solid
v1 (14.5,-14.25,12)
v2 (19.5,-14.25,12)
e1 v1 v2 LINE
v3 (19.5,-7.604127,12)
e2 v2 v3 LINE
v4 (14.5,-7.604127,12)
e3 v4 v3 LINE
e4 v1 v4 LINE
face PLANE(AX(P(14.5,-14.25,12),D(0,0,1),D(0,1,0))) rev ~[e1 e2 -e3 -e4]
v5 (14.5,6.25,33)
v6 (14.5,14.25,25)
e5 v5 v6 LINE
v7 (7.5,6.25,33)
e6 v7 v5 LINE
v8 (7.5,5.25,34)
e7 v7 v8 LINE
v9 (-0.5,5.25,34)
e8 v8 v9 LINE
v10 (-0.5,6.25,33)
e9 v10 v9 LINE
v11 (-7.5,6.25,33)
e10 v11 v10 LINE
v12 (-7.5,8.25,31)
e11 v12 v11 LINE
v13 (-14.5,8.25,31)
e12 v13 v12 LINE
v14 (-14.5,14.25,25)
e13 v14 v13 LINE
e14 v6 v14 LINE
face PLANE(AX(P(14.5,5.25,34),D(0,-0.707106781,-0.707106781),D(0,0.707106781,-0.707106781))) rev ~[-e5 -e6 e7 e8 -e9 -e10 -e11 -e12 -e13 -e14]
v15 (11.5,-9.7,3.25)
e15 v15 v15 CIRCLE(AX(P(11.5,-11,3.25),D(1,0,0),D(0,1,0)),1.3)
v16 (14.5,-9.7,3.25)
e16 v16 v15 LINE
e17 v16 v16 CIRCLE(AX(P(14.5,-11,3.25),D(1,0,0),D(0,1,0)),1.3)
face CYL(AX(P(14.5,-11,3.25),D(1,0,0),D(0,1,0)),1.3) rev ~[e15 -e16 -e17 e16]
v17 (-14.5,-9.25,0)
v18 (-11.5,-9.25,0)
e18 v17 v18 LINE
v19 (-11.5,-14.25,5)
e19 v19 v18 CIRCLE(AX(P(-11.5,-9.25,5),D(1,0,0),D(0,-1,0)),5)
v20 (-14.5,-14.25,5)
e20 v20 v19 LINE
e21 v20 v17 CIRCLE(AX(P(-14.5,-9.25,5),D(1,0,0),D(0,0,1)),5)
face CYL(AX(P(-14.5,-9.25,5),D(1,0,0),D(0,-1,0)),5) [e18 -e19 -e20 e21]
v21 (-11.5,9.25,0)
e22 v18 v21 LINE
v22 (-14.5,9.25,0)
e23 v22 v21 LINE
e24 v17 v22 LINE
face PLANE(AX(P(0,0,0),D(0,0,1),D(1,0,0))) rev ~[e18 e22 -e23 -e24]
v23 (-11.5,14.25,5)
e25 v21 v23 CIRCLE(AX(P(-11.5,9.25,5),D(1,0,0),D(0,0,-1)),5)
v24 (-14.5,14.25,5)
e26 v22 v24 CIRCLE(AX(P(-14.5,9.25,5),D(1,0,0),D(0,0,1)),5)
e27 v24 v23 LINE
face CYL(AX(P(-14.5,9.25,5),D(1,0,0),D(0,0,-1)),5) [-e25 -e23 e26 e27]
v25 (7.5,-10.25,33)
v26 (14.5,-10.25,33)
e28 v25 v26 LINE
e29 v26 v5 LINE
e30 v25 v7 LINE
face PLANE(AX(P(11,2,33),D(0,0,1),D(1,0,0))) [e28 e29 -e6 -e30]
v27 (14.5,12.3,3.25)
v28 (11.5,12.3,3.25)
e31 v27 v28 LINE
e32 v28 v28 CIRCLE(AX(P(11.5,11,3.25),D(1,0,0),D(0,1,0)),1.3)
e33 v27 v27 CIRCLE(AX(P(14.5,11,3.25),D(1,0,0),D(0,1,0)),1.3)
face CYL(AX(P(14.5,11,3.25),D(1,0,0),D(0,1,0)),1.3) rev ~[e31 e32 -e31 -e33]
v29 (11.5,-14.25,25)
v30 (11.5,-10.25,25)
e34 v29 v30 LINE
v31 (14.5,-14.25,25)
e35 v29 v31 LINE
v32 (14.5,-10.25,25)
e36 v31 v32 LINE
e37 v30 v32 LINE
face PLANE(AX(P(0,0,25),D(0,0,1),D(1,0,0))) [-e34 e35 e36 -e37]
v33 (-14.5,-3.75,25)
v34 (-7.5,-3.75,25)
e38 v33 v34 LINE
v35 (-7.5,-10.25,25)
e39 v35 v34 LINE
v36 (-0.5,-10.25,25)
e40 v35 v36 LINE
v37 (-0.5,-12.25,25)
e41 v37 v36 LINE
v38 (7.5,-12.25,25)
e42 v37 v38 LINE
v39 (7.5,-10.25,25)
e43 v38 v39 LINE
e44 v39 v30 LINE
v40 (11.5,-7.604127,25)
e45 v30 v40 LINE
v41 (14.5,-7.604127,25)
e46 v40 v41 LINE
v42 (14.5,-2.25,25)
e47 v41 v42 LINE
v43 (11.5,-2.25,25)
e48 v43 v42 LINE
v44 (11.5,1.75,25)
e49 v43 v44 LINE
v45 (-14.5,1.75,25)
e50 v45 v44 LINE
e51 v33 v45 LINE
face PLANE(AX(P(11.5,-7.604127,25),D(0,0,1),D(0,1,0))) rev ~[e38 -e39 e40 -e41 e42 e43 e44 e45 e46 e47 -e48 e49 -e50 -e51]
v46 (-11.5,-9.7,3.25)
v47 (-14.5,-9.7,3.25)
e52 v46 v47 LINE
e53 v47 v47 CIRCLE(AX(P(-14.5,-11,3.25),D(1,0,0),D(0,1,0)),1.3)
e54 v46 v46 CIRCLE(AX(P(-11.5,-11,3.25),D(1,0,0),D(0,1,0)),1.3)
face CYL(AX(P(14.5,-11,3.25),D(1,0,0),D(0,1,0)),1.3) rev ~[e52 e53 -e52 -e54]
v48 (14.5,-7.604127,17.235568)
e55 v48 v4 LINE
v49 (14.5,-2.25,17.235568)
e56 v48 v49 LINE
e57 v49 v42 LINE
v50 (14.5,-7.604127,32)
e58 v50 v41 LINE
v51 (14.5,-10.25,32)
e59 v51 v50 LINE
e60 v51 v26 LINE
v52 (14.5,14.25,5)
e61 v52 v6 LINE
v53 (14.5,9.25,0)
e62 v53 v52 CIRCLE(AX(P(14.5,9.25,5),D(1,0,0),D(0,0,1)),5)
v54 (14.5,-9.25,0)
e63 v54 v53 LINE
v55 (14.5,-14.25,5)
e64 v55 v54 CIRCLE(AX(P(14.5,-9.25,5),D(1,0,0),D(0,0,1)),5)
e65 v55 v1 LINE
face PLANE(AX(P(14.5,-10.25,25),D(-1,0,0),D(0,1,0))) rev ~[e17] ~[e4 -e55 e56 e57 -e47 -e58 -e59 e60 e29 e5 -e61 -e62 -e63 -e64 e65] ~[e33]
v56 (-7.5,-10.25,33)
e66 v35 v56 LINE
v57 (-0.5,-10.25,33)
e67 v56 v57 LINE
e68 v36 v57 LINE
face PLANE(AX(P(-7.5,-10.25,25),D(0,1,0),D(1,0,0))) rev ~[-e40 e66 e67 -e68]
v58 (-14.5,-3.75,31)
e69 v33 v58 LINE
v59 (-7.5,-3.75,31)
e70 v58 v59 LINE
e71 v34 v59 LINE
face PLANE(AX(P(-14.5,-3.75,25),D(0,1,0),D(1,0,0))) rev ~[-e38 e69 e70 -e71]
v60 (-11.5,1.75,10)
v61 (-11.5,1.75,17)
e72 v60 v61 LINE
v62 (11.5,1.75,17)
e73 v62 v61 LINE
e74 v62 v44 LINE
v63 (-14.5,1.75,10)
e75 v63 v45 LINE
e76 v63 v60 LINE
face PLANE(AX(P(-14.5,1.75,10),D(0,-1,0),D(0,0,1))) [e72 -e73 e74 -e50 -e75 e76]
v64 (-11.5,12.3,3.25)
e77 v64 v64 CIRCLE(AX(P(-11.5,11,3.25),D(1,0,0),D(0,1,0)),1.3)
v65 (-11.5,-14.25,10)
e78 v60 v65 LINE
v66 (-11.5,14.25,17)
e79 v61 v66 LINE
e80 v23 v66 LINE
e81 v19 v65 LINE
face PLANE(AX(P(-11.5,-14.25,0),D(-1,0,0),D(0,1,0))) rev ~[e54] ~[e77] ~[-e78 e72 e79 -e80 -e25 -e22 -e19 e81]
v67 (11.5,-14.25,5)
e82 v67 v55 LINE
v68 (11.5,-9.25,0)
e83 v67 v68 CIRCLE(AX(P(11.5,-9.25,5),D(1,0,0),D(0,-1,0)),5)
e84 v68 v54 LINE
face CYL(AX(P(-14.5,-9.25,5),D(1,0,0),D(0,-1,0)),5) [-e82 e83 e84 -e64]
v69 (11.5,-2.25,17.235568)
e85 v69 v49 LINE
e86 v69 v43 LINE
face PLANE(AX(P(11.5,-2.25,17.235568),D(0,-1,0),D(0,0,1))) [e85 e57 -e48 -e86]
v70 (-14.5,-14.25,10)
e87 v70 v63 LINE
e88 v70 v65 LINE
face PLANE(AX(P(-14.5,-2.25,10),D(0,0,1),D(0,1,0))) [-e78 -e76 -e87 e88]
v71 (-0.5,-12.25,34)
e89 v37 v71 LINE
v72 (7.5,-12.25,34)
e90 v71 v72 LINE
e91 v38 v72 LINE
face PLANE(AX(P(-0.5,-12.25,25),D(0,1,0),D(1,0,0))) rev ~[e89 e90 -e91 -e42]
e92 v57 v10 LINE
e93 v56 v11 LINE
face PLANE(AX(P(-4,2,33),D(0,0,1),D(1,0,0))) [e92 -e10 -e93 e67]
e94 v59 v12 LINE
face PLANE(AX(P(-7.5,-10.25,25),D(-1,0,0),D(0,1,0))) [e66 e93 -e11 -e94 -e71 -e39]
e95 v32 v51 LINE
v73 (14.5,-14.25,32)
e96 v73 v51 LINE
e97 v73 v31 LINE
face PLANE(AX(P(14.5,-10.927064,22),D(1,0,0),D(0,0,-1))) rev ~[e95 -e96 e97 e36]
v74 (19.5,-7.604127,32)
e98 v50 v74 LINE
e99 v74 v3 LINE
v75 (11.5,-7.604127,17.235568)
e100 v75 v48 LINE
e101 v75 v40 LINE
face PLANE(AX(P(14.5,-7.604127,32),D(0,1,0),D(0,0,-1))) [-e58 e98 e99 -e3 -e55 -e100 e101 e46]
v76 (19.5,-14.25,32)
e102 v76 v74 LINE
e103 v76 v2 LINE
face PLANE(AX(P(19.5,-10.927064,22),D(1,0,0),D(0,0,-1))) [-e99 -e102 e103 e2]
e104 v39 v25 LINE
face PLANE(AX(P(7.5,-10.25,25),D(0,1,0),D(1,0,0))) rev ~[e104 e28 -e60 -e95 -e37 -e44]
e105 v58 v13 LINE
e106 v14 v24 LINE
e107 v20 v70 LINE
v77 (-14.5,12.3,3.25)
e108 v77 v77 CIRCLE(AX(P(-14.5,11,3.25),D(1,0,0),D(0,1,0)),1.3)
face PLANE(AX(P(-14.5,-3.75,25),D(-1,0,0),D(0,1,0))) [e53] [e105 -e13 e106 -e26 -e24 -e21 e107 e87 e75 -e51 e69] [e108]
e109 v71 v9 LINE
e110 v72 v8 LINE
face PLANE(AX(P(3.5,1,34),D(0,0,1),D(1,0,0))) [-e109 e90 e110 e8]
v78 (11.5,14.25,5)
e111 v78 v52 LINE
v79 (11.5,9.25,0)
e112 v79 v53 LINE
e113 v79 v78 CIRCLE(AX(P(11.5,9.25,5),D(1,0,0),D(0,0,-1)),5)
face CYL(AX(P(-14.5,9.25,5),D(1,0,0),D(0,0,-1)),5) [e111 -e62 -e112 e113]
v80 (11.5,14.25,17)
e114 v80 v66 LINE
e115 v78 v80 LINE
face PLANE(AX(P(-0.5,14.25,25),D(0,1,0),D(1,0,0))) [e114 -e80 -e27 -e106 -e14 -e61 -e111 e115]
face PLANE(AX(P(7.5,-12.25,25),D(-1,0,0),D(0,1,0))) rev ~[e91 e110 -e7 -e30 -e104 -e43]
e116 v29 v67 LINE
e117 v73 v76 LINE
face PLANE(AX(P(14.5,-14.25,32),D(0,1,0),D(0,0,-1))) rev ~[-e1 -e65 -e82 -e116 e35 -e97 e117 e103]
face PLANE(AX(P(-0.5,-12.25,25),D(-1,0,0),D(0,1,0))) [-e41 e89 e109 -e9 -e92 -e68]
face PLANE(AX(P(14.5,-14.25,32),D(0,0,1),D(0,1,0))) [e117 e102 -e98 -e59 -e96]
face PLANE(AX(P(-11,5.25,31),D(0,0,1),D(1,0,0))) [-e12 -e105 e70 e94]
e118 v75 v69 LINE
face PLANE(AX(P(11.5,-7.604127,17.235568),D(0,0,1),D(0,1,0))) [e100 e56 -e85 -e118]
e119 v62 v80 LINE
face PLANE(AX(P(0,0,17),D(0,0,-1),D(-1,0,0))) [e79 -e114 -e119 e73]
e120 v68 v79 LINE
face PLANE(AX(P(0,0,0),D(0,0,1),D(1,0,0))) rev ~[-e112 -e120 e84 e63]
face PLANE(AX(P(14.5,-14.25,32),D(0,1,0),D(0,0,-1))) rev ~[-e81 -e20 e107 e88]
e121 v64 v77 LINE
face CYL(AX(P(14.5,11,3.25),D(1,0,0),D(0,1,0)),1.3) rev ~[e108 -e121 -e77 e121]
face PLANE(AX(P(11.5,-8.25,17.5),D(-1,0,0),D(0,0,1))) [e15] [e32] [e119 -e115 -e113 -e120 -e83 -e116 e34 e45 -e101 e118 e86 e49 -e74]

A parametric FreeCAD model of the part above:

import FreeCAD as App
import Part
import Sketcher


def edges_at(feature, points):
    """Names of the edges that pass closest to the given points."""
    edges = feature.Shape.Edges
    near = lambda p: min(range(len(edges)), key=lambda i: edges[i].distToShape(Part.Vertex(*p))[0])
    return sorted({f"Edge{near(p) + 1}" for p in points})


def add_polygon(sketch, points):
    """Adds a closed chain of lines whose ends are joined by coincident constraints."""
    first, n = sketch.GeometryCount, len(points)
    for a, b in zip(points, points[1:] + points[:1]):
        sketch.addGeometry(Part.LineSegment(App.Vector(*a, 0), App.Vector(*b, 0)), False)
    for i in range(n):
        sketch.addConstraint(Sketcher.Constraint("Coincident", first + i, 2, first + (i + 1) % n, 1))

doc = App.newDocument("Part")
body = doc.addObject("PartDesign::Body", "Body")

sketch1 = body.newObject("Sketcher::SketchObject", "Sketch")
sketch1.AttachmentSupport = (doc.getObject("XY_Plane"), [""])
sketch1.MapMode = "FlatFace"
add_polygon(sketch1, [(-14, 14), (-14, -14), (14, -14), (14, 14)])
sketch1.addConstraint([
    Sketcher.Constraint("Vertical", 0),
    Sketcher.Constraint("Horizontal", 1),
    Sketcher.Constraint("Vertical", 2),
    Sketcher.Constraint("Horizontal", 3),
    Sketcher.Constraint("Symmetric", 0, 2, 2, 2, -1, 1),
    Sketcher.Constraint("DistanceX", 1, 1, 1, 2, 29.0),
    Sketcher.Constraint("DistanceY", 0, 2, 0, 1, 28.5),
])
pad1 = body.newObject("PartDesign::Pad", "Pad")
pad1.Profile = sketch1
pad1.Length = 25

sketch2 = body.newObject("Sketcher::SketchObject", "Sketch001")
sketch2.AttachmentSupport = (doc.getObject("YZ_Plane"), [""])
sketch2.MapMode = "FlatFace"
sketch2.AttachmentOffset = App.Placement(App.Vector(0, 0, 14.5), App.Rotation())
sketch2.addGeometry([
    Part.Circle(App.Vector(11, 3.2, 0), App.Vector(0, 0, 1), 1.3),
    Part.Circle(App.Vector(-11, 3.2, 0), App.Vector(0, 0, 1), 1.3),
], False)
sketch2.addConstraint([
    Sketcher.Constraint("Equal", 0, 1),
    Sketcher.Constraint("Symmetric", 0, 3, 1, 3, -2),
    Sketcher.Constraint("Diameter", 0, 2.6),
    Sketcher.Constraint("DistanceX", -1, 1, 0, 3, 11.0),
    Sketcher.Constraint("DistanceY", -1, 1, 0, 3, 3.25),
])
pocket1 = body.newObject("PartDesign::Pocket", "Pocket")
pocket1.Profile = sketch2
pocket1.Type = "ThroughAll"
doc.recompute()

fillet = body.newObject("PartDesign::Fillet", "Fillet")
fillet.Base = (pocket1, edges_at(pocket1, [(0, -14.25, 0), (0, 14.25, 0)]))
fillet.Radius = 5

sketch3 = body.newObject("Sketcher::SketchObject", "Sketch002")
sketch3.AttachmentSupport = (doc.getObject("XY_Plane"), [""])
sketch3.MapMode = "FlatFace"
add_polygon(sketch3, [(12, 14), (12, -14), (-12, -14), (-12, 14)])
sketch3.addConstraint([
    Sketcher.Constraint("Vertical", 0),
    Sketcher.Constraint("Horizontal", 1),
    Sketcher.Constraint("Vertical", 2),
    Sketcher.Constraint("Horizontal", 3),
    Sketcher.Constraint("Symmetric", 0, 2, 2, 2, -1, 1),
    Sketcher.Constraint("DistanceX", 1, 2, 1, 1, 23.0),
    Sketcher.Constraint("DistanceY", 0, 2, 0, 1, 28.5),
])
pocket2 = body.newObject("PartDesign::Pocket", "Pocket001")
pocket2.Profile = sketch3
pocket2.Length = 17
pocket2.Reversed = True

sketch4 = body.newObject("Sketcher::SketchObject", "Sketch003")
sketch4.AttachmentSupport = (doc.getObject("XY_Plane"), [""])
sketch4.MapMode = "FlatFace"
sketch4.AttachmentOffset = App.Placement(App.Vector(0, 0, 25), App.Rotation())
add_polygon(sketch4, [(-14, 14), (-14, -4), (-8, -4), (-8, 14)])
sketch4.addConstraint([
    Sketcher.Constraint("Vertical", 0),
    Sketcher.Constraint("Horizontal", 1),
    Sketcher.Constraint("Vertical", 2),
    Sketcher.Constraint("Horizontal", 3),
    Sketcher.Constraint("DistanceX", 1, 1, 1, 2, 7.0),
    Sketcher.Constraint("DistanceY", 0, 2, 0, 1, 18.0),
    Sketcher.Constraint("DistanceX", 0, 2, -1, 1, 14.5),
    Sketcher.Constraint("DistanceY", 0, 2, -1, 1, 3.75),
])
pad2 = body.newObject("PartDesign::Pad", "Pad001")
pad2.Profile = sketch4
pad2.Length = 6

sketch5 = body.newObject("Sketcher::SketchObject", "Sketch004")
sketch5.AttachmentSupport = (doc.getObject("XY_Plane"), [""])
sketch5.MapMode = "FlatFace"
sketch5.AttachmentOffset = App.Placement(App.Vector(0, 0, 25), App.Rotation())
add_polygon(sketch5, [(-8, 14), (-8, -10), (0, -10), (0, 14)])
sketch5.addConstraint([
    Sketcher.Constraint("Vertical", 0),
    Sketcher.Constraint("Horizontal", 1),
    Sketcher.Constraint("Vertical", 2),
    Sketcher.Constraint("Horizontal", 3),
    Sketcher.Constraint("DistanceX", 1, 1, 1, 2, 7.0),
    Sketcher.Constraint("DistanceY", 0, 2, 0, 1, 24.5),
    Sketcher.Constraint("DistanceX", 0, 2, -1, 1, 7.5),
    Sketcher.Constraint("DistanceY", 0, 2, -1, 1, 10.25),
])
pad3 = body.newObject("PartDesign::Pad", "Pad002")
pad3.Profile = sketch5
pad3.Length = 8

sketch6 = body.newObject("Sketcher::SketchObject", "Sketch005")
sketch6.AttachmentSupport = (doc.getObject("XY_Plane"), [""])
sketch6.MapMode = "FlatFace"
sketch6.AttachmentOffset = App.Placement(App.Vector(0, 0, 25), App.Rotation())
add_polygon(sketch6, [(0, 14), (0, -12), (8, -12), (8, 14)])
sketch6.addConstraint([
    Sketcher.Constraint("Vertical", 0),
    Sketcher.Constraint("Horizontal", 1),
    Sketcher.Constraint("Vertical", 2),
    Sketcher.Constraint("Horizontal", 3),
    Sketcher.Constraint("DistanceX", 1, 1, 1, 2, 8.0),
    Sketcher.Constraint("DistanceY", 0, 2, 0, 1, 26.5),
    Sketcher.Constraint("DistanceX", 0, 2, -1, 1, 0.5),
    Sketcher.Constraint("DistanceY", 0, 2, -1, 1, 12.25),
])
pad4 = body.newObject("PartDesign::Pad", "Pad003")
pad4.Profile = sketch6
pad4.Length = 9

sketch7 = body.newObject("Sketcher::SketchObject", "Sketch006")
sketch7.AttachmentSupport = (doc.getObject("XY_Plane"), [""])
sketch7.MapMode = "FlatFace"
sketch7.AttachmentOffset = App.Placement(App.Vector(0, 0, 25), App.Rotation())
add_polygon(sketch7, [(8, 14), (8, -10), (14, -10), (14, 14)])
sketch7.addConstraint([
    Sketcher.Constraint("Vertical", 0),
    Sketcher.Constraint("Horizontal", 1),
    Sketcher.Constraint("Vertical", 2),
    Sketcher.Constraint("Horizontal", 3),
    Sketcher.Constraint("DistanceX", 1, 1, 1, 2, 7.0),
    Sketcher.Constraint("DistanceY", 0, 2, 0, 1, 24.5),
    Sketcher.Constraint("DistanceX", -1, 1, 0, 2, 7.5),
    Sketcher.Constraint("DistanceY", 0, 2, -1, 1, 10.25),
])
pad5 = body.newObject("PartDesign::Pad", "Pad004")
pad5.Profile = sketch7
pad5.Length = 8

sketch8 = body.newObject("Sketcher::SketchObject", "Sketch007")
sketch8.AttachmentSupport = (doc.getObject("YZ_Plane"), [""])
sketch8.MapMode = "FlatFace"
sketch8.AttachmentOffset = App.Placement(App.Vector(0, 0, 14.5), App.Rotation())
add_polygon(sketch8, [(14, 25), (14, 34), (5, 34)])
sketch8.addConstraint([
    Sketcher.Constraint("Vertical", 0),
    Sketcher.Constraint("Horizontal", 1),
    Sketcher.Constraint("Equal", 1, 0),
    Sketcher.Constraint("DistanceX", 1, 2, 1, 1, 9.0),
    Sketcher.Constraint("DistanceY", -1, 1, 0, 2, 34.0),
    Sketcher.Constraint("DistanceX", -1, 1, 0, 2, 14.25),
])
pocket3 = body.newObject("PartDesign::Pocket", "Pocket002")
pocket3.Profile = sketch8
pocket3.Length = 31

sketch9 = body.newObject("Sketcher::SketchObject", "Sketch008")
sketch9.AttachmentSupport = (doc.getObject("YZ_Plane"), [""])
sketch9.MapMode = "FlatFace"
sketch9.AttachmentOffset = App.Placement(App.Vector(0, 0, 14.5), App.Rotation())
add_polygon(sketch9, [(-8, 32), (-14, 32), (-14, 12), (-8, 12)])
sketch9.addConstraint([
    Sketcher.Constraint("Horizontal", 0),
    Sketcher.Constraint("Vertical", 1),
    Sketcher.Constraint("Horizontal", 2),
    Sketcher.Constraint("Vertical", 3),
    Sketcher.Constraint("DistanceY", 1, 2, 1, 1, 20.0),
    Sketcher.Constraint("DistanceY", -1, 1, 0, 2, 32.0),
    Sketcher.Constraint("DistanceX", 0, 2, -1, 1, 14.25),
    Sketcher.Constraint("DistanceX", 0, 2, 0, 1, 6.645873),
])
pad6 = body.newObject("PartDesign::Pad", "Pad005")
pad6.Profile = sketch9
pad6.Length = 5

sketch10 = body.newObject("Sketcher::SketchObject", "Sketch009")
sketch10.AttachmentSupport = (doc.getObject("YZ_Plane"), [""])
sketch10.MapMode = "FlatFace"
sketch10.AttachmentOffset = App.Placement(App.Vector(0, 0, -14.5), App.Rotation())
add_polygon(sketch10, [(-2, 10), (-14, 10), (-14, 25), (-2, 25)])
sketch10.addConstraint([
    Sketcher.Constraint("Horizontal", 0),
    Sketcher.Constraint("Vertical", 1),
    Sketcher.Constraint("Horizontal", 2),
    Sketcher.Constraint("Vertical", 3),
    Sketcher.Constraint("DistanceX", 0, 2, 0, 1, 12.0),
    Sketcher.Constraint("DistanceY", 1, 1, 1, 2, 15.0),
    Sketcher.Constraint("DistanceY", -1, 1, 0, 2, 10.0),
    Sketcher.Constraint("DistanceX", 0, 2, -1, 1, 14.25),
])
pocket4 = body.newObject("PartDesign::Pocket", "Pocket003")
pocket4.Profile = sketch10
pocket4.Length = 26
pocket4.Reversed = True

sketch11 = body.newObject("Sketcher::SketchObject", "Sketch010")
sketch11.AttachmentSupport = (doc.getObject("YZ_Plane"), [""])
sketch11.MapMode = "FlatFace"
sketch11.AttachmentOffset = App.Placement(App.Vector(0, 0, 11.5), App.Rotation())
add_polygon(sketch11, [(-2, 17), (-8, 17), (-8, 25), (-2, 25)])
sketch11.addConstraint([
    Sketcher.Constraint("Horizontal", 0),
    Sketcher.Constraint("Vertical", 1),
    Sketcher.Constraint("Horizontal", 2),
    Sketcher.Constraint("Vertical", 3),
    Sketcher.Constraint("DistanceY", -1, 1, 1, 2, 25.0),
    Sketcher.Constraint("DistanceX", 2, 2, -1, 1, 2.25),
    Sketcher.Constraint("DistanceX", 0, 2, 0, 1, 5.354127),
    Sketcher.Constraint("DistanceY", 1, 1, 1, 2, 7.764432),
])
pocket5 = body.newObject("PartDesign::Pocket", "Pocket004")
pocket5.Profile = sketch11
pocket5.Length = 25
pocket5.Reversed = True

sketch12 = body.newObject("Sketcher::SketchObject", "Sketch011")
sketch12.AttachmentSupport = (doc.getObject("YZ_Plane"), [""])
sketch12.MapMode = "FlatFace"
sketch12.AttachmentOffset = App.Placement(App.Vector(0, 0, -14.5), App.Rotation())
add_polygon(sketch12, [(1.8, 10), (-2.2, 10), (-2.2, 25), (1.8, 25)])
sketch12.addConstraint([
    Sketcher.Constraint("Horizontal", 0),
    Sketcher.Constraint("Vertical", 1),
    Sketcher.Constraint("Horizontal", 2),
    Sketcher.Constraint("Vertical", 3),
    Sketcher.Constraint("DistanceX", 0, 2, 0, 1, 4.0),
    Sketcher.Constraint("DistanceY", 1, 1, 1, 2, 15.0),
    Sketcher.Constraint("DistanceY", -1, 1, 0, 2, 10.0),
    Sketcher.Constraint("DistanceX", 0, 2, -1, 1, 2.25),
])
pocket6 = body.newObject("PartDesign::Pocket", "Pocket005")
pocket6.Profile = sketch12
pocket6.Length = 26
pocket6.Reversed = True

doc.recompute()
